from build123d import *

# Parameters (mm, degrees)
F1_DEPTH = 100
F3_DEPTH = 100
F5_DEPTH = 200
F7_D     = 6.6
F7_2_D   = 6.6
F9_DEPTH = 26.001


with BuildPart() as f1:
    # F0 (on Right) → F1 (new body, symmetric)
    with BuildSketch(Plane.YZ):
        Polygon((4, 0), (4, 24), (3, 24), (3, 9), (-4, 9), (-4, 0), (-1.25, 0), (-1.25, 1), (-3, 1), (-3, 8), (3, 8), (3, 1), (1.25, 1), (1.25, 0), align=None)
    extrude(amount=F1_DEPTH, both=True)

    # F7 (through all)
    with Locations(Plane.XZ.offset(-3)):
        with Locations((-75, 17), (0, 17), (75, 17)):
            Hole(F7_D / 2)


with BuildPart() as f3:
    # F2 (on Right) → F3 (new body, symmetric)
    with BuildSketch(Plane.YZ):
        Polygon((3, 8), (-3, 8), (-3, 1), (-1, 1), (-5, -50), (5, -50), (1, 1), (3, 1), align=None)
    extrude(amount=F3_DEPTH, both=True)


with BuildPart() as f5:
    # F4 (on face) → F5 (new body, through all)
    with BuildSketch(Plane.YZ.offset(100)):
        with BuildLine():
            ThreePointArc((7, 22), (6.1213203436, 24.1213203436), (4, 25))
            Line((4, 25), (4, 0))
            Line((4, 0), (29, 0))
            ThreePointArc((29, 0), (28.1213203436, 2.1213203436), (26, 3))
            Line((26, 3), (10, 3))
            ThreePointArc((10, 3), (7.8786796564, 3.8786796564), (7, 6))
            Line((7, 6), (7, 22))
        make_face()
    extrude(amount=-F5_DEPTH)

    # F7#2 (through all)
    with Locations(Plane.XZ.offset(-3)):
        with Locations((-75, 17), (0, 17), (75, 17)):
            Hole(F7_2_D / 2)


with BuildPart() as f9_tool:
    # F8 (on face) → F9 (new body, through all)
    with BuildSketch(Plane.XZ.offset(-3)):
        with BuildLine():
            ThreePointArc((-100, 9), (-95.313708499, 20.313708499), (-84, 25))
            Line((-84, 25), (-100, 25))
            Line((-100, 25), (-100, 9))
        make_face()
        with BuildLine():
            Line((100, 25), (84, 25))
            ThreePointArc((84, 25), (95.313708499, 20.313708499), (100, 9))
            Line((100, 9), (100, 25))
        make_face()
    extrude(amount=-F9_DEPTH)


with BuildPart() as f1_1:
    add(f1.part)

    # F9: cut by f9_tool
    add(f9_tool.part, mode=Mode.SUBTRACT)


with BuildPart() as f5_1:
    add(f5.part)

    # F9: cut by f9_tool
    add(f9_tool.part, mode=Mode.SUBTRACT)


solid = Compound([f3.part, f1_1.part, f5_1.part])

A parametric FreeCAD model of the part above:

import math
import FreeCAD as App
import Part
import Sketcher


def add_polygon(sketch, points):
    """Adds a closed chain of lines whose ends are joined by coincident constraints."""
    first, n = sketch.GeometryCount, len(points)
    for a, b in zip(points, points[1:] + points[:1]):
        sketch.addGeometry(Part.LineSegment(App.Vector(*a, 0), App.Vector(*b, 0)), False)
    for i in range(n):
        sketch.addConstraint(Sketcher.Constraint("Coincident", first + i, 2, first + (i + 1) % n, 1))

doc = App.newDocument("Part")
body = doc.addObject("PartDesign::Body", "Body")

# Sketch on YZ plane
sketch1 = body.newObject("Sketcher::SketchObject", "Sketch")
sketch1.AttachmentSupport = (doc.getObject("YZ_Plane"), [""])
sketch1.MapMode = "FlatFace"
add_polygon(sketch1, [(4, 0), (4, 24), (3, 24), (3, 9), (-4, 9), (-4, 0), (-1.2, 0), (-1.2, 1), (-3, 1), (-3, 8), (3, 8), (3, 1), (1.2, 1), (1.2, 0)])  # lines 0-13
sketch1.addConstraint([
    Sketcher.Constraint("Vertical", 0),
    Sketcher.Constraint("Horizontal", 1),
    Sketcher.Constraint("Vertical", 2),
    Sketcher.Constraint("Horizontal", 3),
    Sketcher.Constraint("Vertical", 4),
    Sketcher.Constraint("Horizontal", 5),
    Sketcher.Constraint("Vertical", 6),
    Sketcher.Constraint("Horizontal", 7),
    Sketcher.Constraint("Vertical", 8),
    Sketcher.Constraint("Horizontal", 9),
    Sketcher.Constraint("Vertical", 10),
    Sketcher.Constraint("Horizontal", 11),
    Sketcher.Constraint("Vertical", 12),
    Sketcher.Constraint("Horizontal", 13),
    Sketcher.Constraint("Symmetric", 5, 2, 12, 2, -1, 1),
    Sketcher.Constraint("Symmetric", 7, 2, 10, 2, -2),
    Sketcher.Constraint("Symmetric", 4, 2, 13, 2, -2),
    Sketcher.Constraint("Vertical", 2, 2, 9, 2),
    Sketcher.Constraint("Equal", 1, 6),
    Sketcher.Constraint("Equal", 3, 8),
    Sketcher.Constraint("DistanceX", 1, 2, 1, 1, 1.0),
    Sketcher.Constraint("DistanceX", 3, 2, 3, 1, 7.0),
    Sketcher.Constraint("DistanceY", 0, 1, 0, 2, 24.0),
    Sketcher.Constraint("DistanceY", 2, 2, 2, 1, 15.0),
    Sketcher.Constraint("DistanceX", 5, 1, 5, 2, 2.75),
])
pad1 = body.newObject("PartDesign::Pad", "Pad")
pad1.Profile = sketch1
pad1.Length = 200
pad1.Midplane = True

# Sketch on XZ plane
sketch2 = body.newObject("Sketcher::SketchObject", "Sketch001")
sketch2.AttachmentSupport = (doc.getObject("XZ_Plane"), [""])
sketch2.MapMode = "FlatFace"
sketch2.AttachmentOffset = App.Placement(App.Vector(0, 0, -3), App.Rotation())
sketch2.addGeometry([
    Part.Circle(App.Vector(-75, 17, 0), App.Vector(0, 0, 1), 3.3),
    Part.Circle(App.Vector(0, 17, 0), App.Vector(0, 0, 1), 3.3),
    Part.Circle(App.Vector(75, 17, 0), App.Vector(0, 0, 1), 3.3),
], False)
sketch2.addConstraint([
    Sketcher.Constraint("Equal", 0, 1),
    Sketcher.Constraint("Equal", 1, 2),
    Sketcher.Constraint("Symmetric", 0, 3, 2, 3, -2),
    Sketcher.Constraint("PointOnObject", 1, 3, -2),
    Sketcher.Constraint("Horizontal", 0, 3, 1, 3),
    Sketcher.Constraint("Diameter", 0, 6.6),
    Sketcher.Constraint("DistanceX", 0, 3, -1, 1, 75.0),
    Sketcher.Constraint("DistanceY", -1, 1, 0, 3, 17.0),
])
doc.recompute()
hole = body.newObject("PartDesign::Hole", "Hole")
hole.Profile = sketch2
hole.ThreadType = "None"
hole.Diameter = 6.6
hole.DepthType = "ThroughAll"
body2 = doc.addObject("PartDesign::Body", "Body001")

# Sketch on YZ plane
sketch3 = body2.newObject("Sketcher::SketchObject", "Sketch002")
sketch3.AttachmentSupport = (doc.getObject("YZ_Plane001"), [""])
sketch3.MapMode = "FlatFace"
add_polygon(sketch3, [(3, 8), (-3, 8), (-3, 1), (-1, 1), (-5, -50), (5, -50), (1, 1), (3, 1)])  # lines 0-7
sketch3.addConstraint([
    Sketcher.Constraint("Horizontal", 0),
    Sketcher.Constraint("Vertical", 1),
    Sketcher.Constraint("Horizontal", 2),
    Sketcher.Constraint("Horizontal", 4),
    Sketcher.Constraint("Horizontal", 6),
    Sketcher.Constraint("Vertical", 7),
    Sketcher.Constraint("Symmetric", 2, 2, 5, 2, -2),
    Sketcher.Constraint("Equal", 2, 6),
    Sketcher.Constraint("Equal", 3, 5),
    Sketcher.Constraint("DistanceX", 0, 2, 0, 1, 6.0),
    Sketcher.Constraint("DistanceX", 2, 1, 2, 2, 2.0),
    Sketcher.Constraint("DistanceX", 4, 1, 4, 2, 10.0),
    Sketcher.Constraint("DistanceY", 1, 2, 1, 1, 7.0),
    Sketcher.Constraint("DistanceY", -1, 1, 0, 2, 8.0),
    Sketcher.Constraint("DistanceY", 3, 2, -1, 1, 50.0),
])
pad2 = body2.newObject("PartDesign::Pad", "Pad001")
pad2.Profile = sketch3
pad2.Length = 200
pad2.Midplane = True
body3 = doc.addObject("PartDesign::Body", "Body002")

# Sketch on YZ plane
sketch4 = body3.newObject("Sketcher::SketchObject", "Sketch003")
sketch4.AttachmentSupport = (doc.getObject("YZ_Plane002"), [""])
sketch4.MapMode = "FlatFace"
sketch4.AttachmentOffset = App.Placement(App.Vector(0, 0, 100), App.Rotation())
sketch4.addGeometry([
    Part.ArcOfCircle(Part.Circle(App.Vector(4, 22, 0), App.Vector(0, 0, 1), 3), math.radians(0), math.radians(90)),  # 0
    Part.LineSegment(App.Vector(4, 25, 0), App.Vector(4, 0, 0)),  # 1
    Part.LineSegment(App.Vector(4, 0, 0), App.Vector(29, 0, 0)),  # 2
    Part.ArcOfCircle(Part.Circle(App.Vector(26, 0, 0), App.Vector(0, 0, 1), 3), math.radians(0), math.radians(90)),  # 3
    Part.LineSegment(App.Vector(26, 3, 0), App.Vector(10, 3, 0)),  # 4
    Part.ArcOfCircle(Part.Circle(App.Vector(10, 6, 0), App.Vector(0, 0, 1), 3), math.radians(180), math.radians(270)),  # 5
    Part.LineSegment(App.Vector(7, 6, 0), App.Vector(7, 22, 0)),  # 6
], False)
sketch4.addConstraint([
    Sketcher.Constraint("Coincident", 0, 2, 1, 1),
    Sketcher.Constraint("Coincident", 1, 2, 2, 1),
    Sketcher.Constraint("Coincident", 2, 2, 3, 1),
    Sketcher.Constraint("Tangent", 3, 2, 4, 1),
    Sketcher.Constraint("Tangent", 4, 2, 5, 2),
    Sketcher.Constraint("Tangent", 5, 1, 6, 1),
    Sketcher.Constraint("Tangent", 6, 2, 0, 1),
    Sketcher.Constraint("Vertical", 1),
    Sketcher.Constraint("Horizontal", 2),
    Sketcher.Constraint("Horizontal", 4),
    Sketcher.Constraint("Vertical", 6),
    Sketcher.Constraint("Equal", 0, 3),
    Sketcher.Constraint("Equal", 3, 5),
    Sketcher.Constraint("PointOnObject", 3, 3, -1),
    Sketcher.Constraint("PointOnObject", 1, 2, -1),
    Sketcher.Constraint("Equal", 2, 1),
    Sketcher.Constraint("Equal", 4, 6),
    Sketcher.Constraint("Radius", 0, 3.0),
    Sketcher.Constraint("DistanceX", 2, 1, 2, 2, 25.0),
    Sketcher.Constraint("DistanceX", -1, 1, 0, 3, 4.0),
])
pad3 = body3.newObject("PartDesign::Pad", "Pad002")
pad3.Profile = sketch4
pad3.Length = 200
pad3.Reversed = True

# Sketch on XZ plane
sketch5 = body3.newObject("Sketcher::SketchObject", "Sketch004")
sketch5.AttachmentSupport = (doc.getObject("XZ_Plane002"), [""])
sketch5.MapMode = "FlatFace"
sketch5.AttachmentOffset = App.Placement(App.Vector(0, 0, -3), App.Rotation())
sketch5.addGeometry([
    Part.Circle(App.Vector(-75, 17, 0), App.Vector(0, 0, 1), 3.3),
    Part.Circle(App.Vector(0, 17, 0), App.Vector(0, 0, 1), 3.3),
    Part.Circle(App.Vector(75, 17, 0), App.Vector(0, 0, 1), 3.3),
], False)
sketch5.addConstraint([
    Sketcher.Constraint("Equal", 0, 1),
    Sketcher.Constraint("Equal", 1, 2),
    Sketcher.Constraint("Symmetric", 0, 3, 2, 3, -2),
    Sketcher.Constraint("PointOnObject", 1, 3, -2),
    Sketcher.Constraint("Horizontal", 0, 3, 1, 3),
    Sketcher.Constraint("Diameter", 0, 6.6),
    Sketcher.Constraint("DistanceX", 0, 3, -1, 1, 75.0),
    Sketcher.Constraint("DistanceY", -1, 1, 0, 3, 17.0),
])
doc.recompute()
hole2 = body3.newObject("PartDesign::Hole", "Hole001")
hole2.Profile = sketch5
hole2.ThreadType = "None"
hole2.Diameter = 6.6
hole2.DepthType = "ThroughAll"
body4 = doc.addObject("PartDesign::Body", "Body003")
body4.AllowCompound = True

# Sketch on XZ plane
sketch6 = body4.newObject("Sketcher::SketchObject", "Sketch005")
sketch6.AttachmentSupport = (doc.getObject("XZ_Plane003"), [""])
sketch6.MapMode = "FlatFace"
sketch6.AttachmentOffset = App.Placement(App.Vector(0, 0, -3), App.Rotation())
sketch6.addGeometry([
    Part.ArcOfCircle(Part.Circle(App.Vector(-84, 9, 0), App.Vector(0, 0, 1), 16), math.radians(90), math.radians(180)),  # 0
    Part.LineSegment(App.Vector(-84, 25, 0), App.Vector(-100, 25, 0)),  # 1
    Part.LineSegment(App.Vector(-100, 25, 0), App.Vector(-100, 9, 0)),  # 2
    Part.LineSegment(App.Vector(100, 25, 0), App.Vector(84, 25, 0)),  # 3
    Part.ArcOfCircle(Part.Circle(App.Vector(84, 9, 0), App.Vector(0, 0, 1), 16), math.radians(0), math.radians(90)),  # 4
    Part.LineSegment(App.Vector(100, 9, 0), App.Vector(100, 25, 0)),  # 5
], False)
sketch6.addConstraint([
    Sketcher.Constraint("Tangent", 0, 1, 1, 1),
    Sketcher.Constraint("Coincident", 1, 2, 2, 1),
    Sketcher.Constraint("Tangent", 2, 2, 0, 2),
    Sketcher.Constraint("Tangent", 3, 2, 4, 2),
    Sketcher.Constraint("Tangent", 4, 1, 5, 1),
    Sketcher.Constraint("Coincident", 5, 2, 3, 1),
    Sketcher.Constraint("Horizontal", 1),
    Sketcher.Constraint("Vertical", 2),
    Sketcher.Constraint("Horizontal", 3),
    Sketcher.Constraint("Vertical", 5),
    Sketcher.Constraint("Equal", 0, 4),
    Sketcher.Constraint("Symmetric", 0, 3, 4, 3, -2),
    Sketcher.Constraint("Radius", 0, 16.0),
    Sketcher.Constraint("DistanceX", 0, 3, -1, 1, 84.0),
    Sketcher.Constraint("DistanceY", -1, 1, 0, 3, 9.0),
])
pad4 = body4.newObject("PartDesign::Pad", "Pad003")
pad4.Profile = sketch6
pad4.Length = 26.001
pad4.Reversed = True
doc.recompute()

body5 = doc.addObject("PartDesign::Body", "Body004")
body5.BaseFeature = body4
boolean = body.newObject("PartDesign::Boolean", "Boolean")
boolean.Type = "Cut"
boolean.addObjects([body5])
doc.recompute()

boolean2 = body3.newObject("PartDesign::Boolean", "Boolean001")
boolean2.Type = "Cut"
boolean2.addObjects([body4])

doc.recompute()
